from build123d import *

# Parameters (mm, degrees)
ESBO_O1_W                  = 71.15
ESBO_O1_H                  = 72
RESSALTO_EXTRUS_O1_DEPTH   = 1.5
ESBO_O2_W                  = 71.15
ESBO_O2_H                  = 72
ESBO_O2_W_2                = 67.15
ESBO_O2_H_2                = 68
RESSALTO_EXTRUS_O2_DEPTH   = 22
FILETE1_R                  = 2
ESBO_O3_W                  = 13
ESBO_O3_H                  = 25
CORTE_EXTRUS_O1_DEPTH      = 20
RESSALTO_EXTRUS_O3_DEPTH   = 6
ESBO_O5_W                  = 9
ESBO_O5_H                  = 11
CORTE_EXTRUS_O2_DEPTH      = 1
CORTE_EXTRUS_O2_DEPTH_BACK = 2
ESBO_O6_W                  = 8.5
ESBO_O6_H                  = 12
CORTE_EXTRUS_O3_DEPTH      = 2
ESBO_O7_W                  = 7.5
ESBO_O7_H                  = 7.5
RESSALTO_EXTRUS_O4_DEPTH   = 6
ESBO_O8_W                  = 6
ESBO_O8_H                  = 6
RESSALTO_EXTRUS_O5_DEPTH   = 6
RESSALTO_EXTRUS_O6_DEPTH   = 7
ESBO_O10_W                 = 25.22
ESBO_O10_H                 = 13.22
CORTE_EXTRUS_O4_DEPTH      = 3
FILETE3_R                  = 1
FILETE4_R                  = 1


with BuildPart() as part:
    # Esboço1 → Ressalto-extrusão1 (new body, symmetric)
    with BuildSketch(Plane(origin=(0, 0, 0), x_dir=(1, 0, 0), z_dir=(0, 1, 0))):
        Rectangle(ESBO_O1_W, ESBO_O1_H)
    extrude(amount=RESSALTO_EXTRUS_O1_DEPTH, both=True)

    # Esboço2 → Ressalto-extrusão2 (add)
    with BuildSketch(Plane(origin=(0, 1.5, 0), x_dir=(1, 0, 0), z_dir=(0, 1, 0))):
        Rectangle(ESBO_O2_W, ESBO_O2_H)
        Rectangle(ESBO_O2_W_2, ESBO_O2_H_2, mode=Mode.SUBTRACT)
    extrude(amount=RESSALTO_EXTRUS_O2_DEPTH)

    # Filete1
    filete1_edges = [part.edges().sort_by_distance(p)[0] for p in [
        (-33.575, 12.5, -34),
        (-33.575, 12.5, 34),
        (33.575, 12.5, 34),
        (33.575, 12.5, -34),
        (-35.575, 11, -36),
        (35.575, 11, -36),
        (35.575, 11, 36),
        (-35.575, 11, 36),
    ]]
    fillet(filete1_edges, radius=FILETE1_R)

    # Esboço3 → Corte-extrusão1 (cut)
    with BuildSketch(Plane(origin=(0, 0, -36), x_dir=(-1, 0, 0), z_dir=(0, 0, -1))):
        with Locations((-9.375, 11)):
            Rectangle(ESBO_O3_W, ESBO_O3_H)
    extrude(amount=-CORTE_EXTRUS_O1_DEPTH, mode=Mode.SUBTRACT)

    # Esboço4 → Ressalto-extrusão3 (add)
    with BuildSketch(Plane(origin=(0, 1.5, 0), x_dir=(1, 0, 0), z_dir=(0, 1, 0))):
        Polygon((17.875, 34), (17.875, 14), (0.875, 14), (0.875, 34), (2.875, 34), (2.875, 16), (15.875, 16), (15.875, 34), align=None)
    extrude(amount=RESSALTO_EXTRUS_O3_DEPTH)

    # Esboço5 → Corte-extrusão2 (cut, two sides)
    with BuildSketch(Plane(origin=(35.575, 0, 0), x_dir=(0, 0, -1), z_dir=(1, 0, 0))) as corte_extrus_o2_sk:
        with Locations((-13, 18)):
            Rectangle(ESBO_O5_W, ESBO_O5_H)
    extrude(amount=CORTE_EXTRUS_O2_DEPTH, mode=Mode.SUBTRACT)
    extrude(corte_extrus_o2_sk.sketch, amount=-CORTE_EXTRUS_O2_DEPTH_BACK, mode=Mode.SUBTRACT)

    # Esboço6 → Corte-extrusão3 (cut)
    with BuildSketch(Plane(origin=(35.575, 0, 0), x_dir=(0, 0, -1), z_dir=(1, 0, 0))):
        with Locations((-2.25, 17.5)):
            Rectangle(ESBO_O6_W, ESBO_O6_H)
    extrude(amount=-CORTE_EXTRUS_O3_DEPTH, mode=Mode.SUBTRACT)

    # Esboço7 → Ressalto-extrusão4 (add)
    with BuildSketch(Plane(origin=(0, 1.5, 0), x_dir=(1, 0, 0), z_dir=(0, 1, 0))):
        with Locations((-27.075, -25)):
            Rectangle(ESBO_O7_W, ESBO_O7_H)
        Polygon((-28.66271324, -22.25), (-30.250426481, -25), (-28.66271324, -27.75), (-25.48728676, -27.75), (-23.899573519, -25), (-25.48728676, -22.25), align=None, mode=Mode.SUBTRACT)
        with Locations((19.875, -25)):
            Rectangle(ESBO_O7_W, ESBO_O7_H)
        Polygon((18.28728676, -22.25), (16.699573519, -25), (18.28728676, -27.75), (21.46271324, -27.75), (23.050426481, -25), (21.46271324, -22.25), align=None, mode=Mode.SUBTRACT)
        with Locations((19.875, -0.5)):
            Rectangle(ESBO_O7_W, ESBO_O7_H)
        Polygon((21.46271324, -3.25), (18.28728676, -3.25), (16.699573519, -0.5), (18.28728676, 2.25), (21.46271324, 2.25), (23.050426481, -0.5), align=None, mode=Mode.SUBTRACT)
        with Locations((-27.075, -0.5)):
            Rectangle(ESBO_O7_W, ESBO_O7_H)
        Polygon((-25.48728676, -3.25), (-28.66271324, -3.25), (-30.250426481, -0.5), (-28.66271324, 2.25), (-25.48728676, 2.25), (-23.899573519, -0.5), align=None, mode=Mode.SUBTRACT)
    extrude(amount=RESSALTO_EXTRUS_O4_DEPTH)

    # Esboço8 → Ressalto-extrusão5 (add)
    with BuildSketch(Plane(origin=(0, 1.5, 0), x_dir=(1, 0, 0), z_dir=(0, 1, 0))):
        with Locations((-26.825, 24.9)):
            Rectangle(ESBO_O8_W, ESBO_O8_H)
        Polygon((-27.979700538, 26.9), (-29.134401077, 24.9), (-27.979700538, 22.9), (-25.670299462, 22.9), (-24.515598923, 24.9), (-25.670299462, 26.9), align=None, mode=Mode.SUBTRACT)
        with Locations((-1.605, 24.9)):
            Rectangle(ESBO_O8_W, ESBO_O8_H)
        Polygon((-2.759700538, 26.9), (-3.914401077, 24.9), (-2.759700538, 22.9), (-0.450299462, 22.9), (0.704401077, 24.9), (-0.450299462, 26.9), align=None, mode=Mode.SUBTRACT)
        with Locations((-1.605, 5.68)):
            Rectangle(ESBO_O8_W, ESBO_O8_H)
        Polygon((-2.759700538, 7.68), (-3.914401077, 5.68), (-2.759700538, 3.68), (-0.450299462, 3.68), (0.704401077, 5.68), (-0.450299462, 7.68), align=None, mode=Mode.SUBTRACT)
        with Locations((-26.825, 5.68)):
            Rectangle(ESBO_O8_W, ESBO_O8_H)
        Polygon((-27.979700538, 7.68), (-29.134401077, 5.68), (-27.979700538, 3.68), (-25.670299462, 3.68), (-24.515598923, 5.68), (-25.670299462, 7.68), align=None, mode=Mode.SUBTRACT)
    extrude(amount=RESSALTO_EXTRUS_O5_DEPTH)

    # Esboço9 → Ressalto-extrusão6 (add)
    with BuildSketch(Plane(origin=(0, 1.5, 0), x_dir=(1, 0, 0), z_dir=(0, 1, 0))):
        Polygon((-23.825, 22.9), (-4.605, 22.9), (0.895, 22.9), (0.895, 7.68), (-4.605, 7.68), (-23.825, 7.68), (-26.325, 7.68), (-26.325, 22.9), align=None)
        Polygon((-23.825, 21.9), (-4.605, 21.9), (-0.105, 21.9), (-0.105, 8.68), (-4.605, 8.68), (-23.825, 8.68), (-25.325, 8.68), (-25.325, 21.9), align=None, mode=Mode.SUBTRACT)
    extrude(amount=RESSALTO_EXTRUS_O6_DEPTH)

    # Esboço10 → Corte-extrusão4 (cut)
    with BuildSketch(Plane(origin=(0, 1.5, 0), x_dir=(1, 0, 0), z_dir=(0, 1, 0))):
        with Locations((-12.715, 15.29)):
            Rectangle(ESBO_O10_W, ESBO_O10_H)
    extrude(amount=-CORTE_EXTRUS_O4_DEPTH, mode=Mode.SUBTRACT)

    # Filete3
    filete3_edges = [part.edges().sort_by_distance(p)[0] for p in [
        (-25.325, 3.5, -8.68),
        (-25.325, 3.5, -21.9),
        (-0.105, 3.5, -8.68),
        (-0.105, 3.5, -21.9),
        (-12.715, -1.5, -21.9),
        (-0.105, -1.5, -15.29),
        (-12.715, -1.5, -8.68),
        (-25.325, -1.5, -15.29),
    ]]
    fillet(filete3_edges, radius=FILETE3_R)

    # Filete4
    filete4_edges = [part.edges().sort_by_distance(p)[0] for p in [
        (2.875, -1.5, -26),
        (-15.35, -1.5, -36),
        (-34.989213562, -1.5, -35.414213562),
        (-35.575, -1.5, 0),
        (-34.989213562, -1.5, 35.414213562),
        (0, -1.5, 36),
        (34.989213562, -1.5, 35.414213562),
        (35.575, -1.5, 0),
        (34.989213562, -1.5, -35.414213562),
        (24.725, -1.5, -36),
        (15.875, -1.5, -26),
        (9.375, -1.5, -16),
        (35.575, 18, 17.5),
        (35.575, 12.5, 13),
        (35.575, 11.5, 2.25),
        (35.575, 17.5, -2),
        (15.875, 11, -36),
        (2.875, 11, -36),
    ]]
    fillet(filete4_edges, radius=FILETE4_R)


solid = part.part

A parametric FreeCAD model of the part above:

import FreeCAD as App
import Part
import Sketcher

V = App.Vector
Q = App.Units.Quantity


def edges_at(feature, points):
    """Names of the edges that pass closest to the given points."""
    edges = feature.Shape.Edges
    near = lambda p: min(range(len(edges)), key=lambda i: edges[i].distToShape(Part.Vertex(*p))[0])
    return sorted({f"Edge{near(p) + 1}" for p in points})


def add_polygon(sketch, points):
    """Adds a closed chain of lines whose ends are joined by coincident constraints."""
    first, n = sketch.GeometryCount, len(points)
    for a, b in zip(points, points[1:] + points[:1]):
        sketch.addGeometry(Part.LineSegment(App.Vector(*a, 0), App.Vector(*b, 0)), False)
    for i in range(n):
        sketch.addConstraint(Sketcher.Constraint("Coincident", first + i, 2, first + (i + 1) % n, 1))

doc = App.newDocument("Part")
body = doc.addObject("PartDesign::Body", "Body")

sketch1 = body.newObject("Sketcher::SketchObject", "Sketch")
sketch1.AttachmentSupport = (doc.getObject("XZ_Plane"), [""])
sketch1.MapMode = "FlatFace"
add_polygon(sketch1, [(-35.575, -36), (-35.575, 36), (35.575, 36), (35.575, -36)])
sketch1.addConstraint([
    Sketcher.Constraint("Vertical", 0),
    Sketcher.Constraint("Horizontal", 1),
    Sketcher.Constraint("Vertical", 2),
    Sketcher.Constraint("Horizontal", 3),
    Sketcher.Constraint("Symmetric", 0, 2, 2, 2, -1, 1),
    Sketcher.Constraint("DistanceY", 0, 1, 0, 2, Q("72 mm")),
    Sketcher.Constraint("DistanceX", 1, 1, 1, 2, Q("71.15 mm")),
])
pad1 = body.newObject("PartDesign::Pad", "Pad")
pad1.Profile = sketch1
pad1.Length = 3
pad1.Midplane = True

sketch2 = body.newObject("Sketcher::SketchObject", "Sketch001")
sketch2.AttachmentSupport = (doc.getObject("XZ_Plane"), [""])
sketch2.MapMode = "FlatFace"
sketch2.AttachmentOffset = App.Placement(V(0, 0, -1.5), App.Rotation())
add_polygon(sketch2, [(-35.575, -36), (-35.575, 36), (35.575, 36), (35.575, -36)])
add_polygon(sketch2, [(33.575, 34), (-33.575, 34), (-33.575, -34), (33.575, -34)])
sketch2.addConstraint([
    Sketcher.Constraint("Vertical", 0),
    Sketcher.Constraint("Horizontal", 1),
    Sketcher.Constraint("Vertical", 2),
    Sketcher.Constraint("Horizontal", 3),
    Sketcher.Constraint("Horizontal", 4),
    Sketcher.Constraint("Vertical", 5),
    Sketcher.Constraint("Horizontal", 6),
    Sketcher.Constraint("Vertical", 7),
    Sketcher.Constraint("Symmetric", 0, 2, 2, 2, -1, 1),
    Sketcher.Constraint("Symmetric", 4, 2, 6, 2, -1, 1),
    Sketcher.Constraint("DistanceY", 0, 1, 0, 2, Q("72 mm")),
    Sketcher.Constraint("DistanceY", 5, 2, 5, 1, Q("68 mm")),
    Sketcher.Constraint("DistanceX", 0, 2, 4, 2, Q("2 mm")),
    Sketcher.Constraint("DistanceX", 1, 1, 1, 2, Q("71.15 mm")),
])
pad2 = body.newObject("PartDesign::Pad", "Pad001")
pad2.Profile = sketch2
pad2.Length = 22
pad2.Reversed = True
doc.recompute()

fillet = body.newObject("PartDesign::Fillet", "Fillet")
fillet.Base = (pad2, edges_at(pad2, [
    (-33.575, 12.5, -34),
    (-33.575, 12.5, 34),
    (33.575, 12.5, 34),
    (33.575, 12.5, -34),
    (-35.575, 11, -36),
    (35.575, 11, -36),
    (35.575, 11, 36),
    (-35.575, 11, 36),
]))
fillet.Radius = 2

sketch3 = body.newObject("Sketcher::SketchObject", "Sketch002")
sketch3.AttachmentSupport = (doc.getObject("XY_Plane"), [""])
sketch3.MapMode = "FlatFace"
sketch3.AttachmentOffset = App.Placement(V(0, 0, -36), App.Rotation())
add_polygon(sketch3, [(15.875, 23.5), (15.875, -1.5), (2.875, -1.5), (2.875, 23.5)])
sketch3.addConstraint([
    Sketcher.Constraint("Vertical", 0),
    Sketcher.Constraint("Horizontal", 1),
    Sketcher.Constraint("Vertical", 2),
    Sketcher.Constraint("Horizontal", 3),
    Sketcher.Constraint("DistanceX", 1, 2, 1, 1, Q("13 mm")),
    Sketcher.Constraint("DistanceY", 0, 2, 0, 1, Q("25 mm")),
    Sketcher.Constraint("DistanceY", 0, 2, -1, 1, Q("1.5 mm")),
    Sketcher.Constraint("DistanceX", -1, 1, 0, 2, Q("15.875 mm")),
])
pocket1 = body.newObject("PartDesign::Pocket", "Pocket")
pocket1.Profile = sketch3
pocket1.Length = 20
pocket1.Reversed = True

sketch4 = body.newObject("Sketcher::SketchObject", "Sketch003")
sketch4.AttachmentSupport = (doc.getObject("XZ_Plane"), [""])
sketch4.MapMode = "FlatFace"
sketch4.AttachmentOffset = App.Placement(V(0, 0, -1.5), App.Rotation())
add_polygon(sketch4, [(17.875, -14), (17.875, -34), (15.875, -34), (15.875, -16), (2.875, -16), (2.875, -34), (0.875, -34), (0.875, -14)])
sketch4.addConstraint([
    Sketcher.Constraint("Vertical", 0),
    Sketcher.Constraint("Horizontal", 1),
    Sketcher.Constraint("Vertical", 2),
    Sketcher.Constraint("Horizontal", 3),
    Sketcher.Constraint("Vertical", 4),
    Sketcher.Constraint("Horizontal", 5),
    Sketcher.Constraint("Vertical", 6),
    Sketcher.Constraint("Horizontal", 7),
    Sketcher.Constraint("Horizontal", 1, 2, 4, 2),
    Sketcher.Constraint("Equal", 1, 5),
    Sketcher.Constraint("DistanceX", 1, 2, 1, 1, Q("2 mm")),
    Sketcher.Constraint("DistanceX", 3, 2, 3, 1, Q("13 mm")),
    Sketcher.Constraint("DistanceY", 0, 2, 0, 1, Q("20 mm")),
    Sketcher.Constraint("DistanceY", 2, 1, 2, 2, Q("18 mm")),
    Sketcher.Constraint("DistanceY", 0, 2, -1, 1, Q("34 mm")),
    Sketcher.Constraint("DistanceX", -1, 1, 0, 2, Q("17.875 mm")),
])
pad3 = body.newObject("PartDesign::Pad", "Pad002")
pad3.Profile = sketch4
pad3.Length = 6
pad3.Reversed = True

sketch5 = body.newObject("Sketcher::SketchObject", "Sketch004")
sketch5.AttachmentSupport = (doc.getObject("YZ_Plane"), [""])
sketch5.MapMode = "FlatFace"
sketch5.AttachmentOffset = App.Placement(V(0, 0, 35.575), App.Rotation())
add_polygon(sketch5, [(23.5, 17.5), (12.5, 17.5), (12.5, 8.5), (23.5, 8.5)])
sketch5.addConstraint([
    Sketcher.Constraint("Horizontal", 0),
    Sketcher.Constraint("Vertical", 1),
    Sketcher.Constraint("Horizontal", 2),
    Sketcher.Constraint("Vertical", 3),
    Sketcher.Constraint("DistanceX", 0, 2, 0, 1, Q("11 mm")),
    Sketcher.Constraint("DistanceY", 1, 2, 1, 1, Q("9 mm")),
    Sketcher.Constraint("DistanceX", -1, 1, 0, 2, Q("12.5 mm")),
    Sketcher.Constraint("DistanceY", -1, 1, 0, 2, Q("17.5 mm")),
])
pocket2 = body.newObject("PartDesign::Pocket", "Pocket001")
pocket2.Profile = sketch5
pocket2.Type = "TwoLengths"
pocket2.Length = 1
pocket2.Length2 = 2
pocket2.Reversed = True

sketch6 = body.newObject("Sketcher::SketchObject", "Sketch005")
sketch6.AttachmentSupport = (doc.getObject("YZ_Plane"), [""])
sketch6.MapMode = "FlatFace"
sketch6.AttachmentOffset = App.Placement(V(0, 0, 35.575), App.Rotation())
add_polygon(sketch6, [(23.5, 6.5), (11.5, 6.5), (11.5, -2), (23.5, -2)])
sketch6.addConstraint([
    Sketcher.Constraint("Horizontal", 0),
    Sketcher.Constraint("Vertical", 1),
    Sketcher.Constraint("Horizontal", 2),
    Sketcher.Constraint("Vertical", 3),
    Sketcher.Constraint("DistanceX", 0, 2, 0, 1, Q("12 mm")),
    Sketcher.Constraint("DistanceY", 1, 2, 1, 1, Q("8.5 mm")),
    Sketcher.Constraint("DistanceY", 1, 2, -1, 1, Q("2 mm")),
    Sketcher.Constraint("DistanceX", -1, 1, 0, 2, Q("11.5 mm")),
])
pocket3 = body.newObject("PartDesign::Pocket", "Pocket002")
pocket3.Profile = sketch6
pocket3.Length = 2

sketch7 = body.newObject("Sketcher::SketchObject", "Sketch006")
sketch7.AttachmentSupport = (doc.getObject("XZ_Plane"), [""])
sketch7.MapMode = "FlatFace"
sketch7.AttachmentOffset = App.Placement(V(0, 0, -1.5), App.Rotation())
add_polygon(sketch7, [(-30.825, 21.25), (-30.825, 28.75), (-23.325, 28.75), (-23.325, 21.25)])
add_polygon(sketch7, [(-30.250426, 25), (-28.662713, 22.25), (-25.487287, 22.25), (-23.899574, 25), (-25.487287, 27.75), (-28.662713, 27.75)])
add_polygon(sketch7, [(16.125, 21.25), (16.125, 28.75), (23.625, 28.75), (23.625, 21.25)])
add_polygon(sketch7, [(16.699574, 25), (18.287287, 22.25), (21.462713, 22.25), (23.050426, 25), (21.462713, 27.75), (18.287287, 27.75)])
add_polygon(sketch7, [(16.125, -3.25), (16.125, 4.25), (23.625, 4.25), (23.625, -3.25)])
add_polygon(sketch7, [(23.050426, 0.5), (21.462713, 3.25), (18.287287, 3.25), (16.699574, 0.5), (18.287287, -2.25), (21.462713, -2.25)])
add_polygon(sketch7, [(-30.825, -3.25), (-30.825, 4.25), (-23.325, 4.25), (-23.325, -3.25)])
add_polygon(sketch7, [(-23.899574, 0.5), (-25.487287, 3.25), (-28.662713, 3.25), (-30.250426, 0.5), (-28.662713, -2.25), (-25.487287, -2.25)])
sketch7.addConstraint([
    Sketcher.Constraint("Vertical", 0),
    Sketcher.Constraint("Horizontal", 1),
    Sketcher.Constraint("Vertical", 2),
    Sketcher.Constraint("Horizontal", 3),
    Sketcher.Constraint("Horizontal", 5),
    Sketcher.Constraint("Horizontal", 8),
    Sketcher.Constraint("Vertical", 10),
    Sketcher.Constraint("Horizontal", 11),
    Sketcher.Constraint("Vertical", 12),
    Sketcher.Constraint("Horizontal", 13),
    Sketcher.Constraint("Horizontal", 15),
    Sketcher.Constraint("Horizontal", 18),
    Sketcher.Constraint("Vertical", 20),
    Sketcher.Constraint("Horizontal", 21),
    Sketcher.Constraint("Vertical", 22),
    Sketcher.Constraint("Horizontal", 23),
    Sketcher.Constraint("Horizontal", 25),
    Sketcher.Constraint("Horizontal", 28),
    Sketcher.Constraint("Vertical", 30),
    Sketcher.Constraint("Horizontal", 31),
    Sketcher.Constraint("Vertical", 32),
    Sketcher.Constraint("Horizontal", 33),
    Sketcher.Constraint("Horizontal", 35),
    Sketcher.Constraint("Horizontal", 38),
    Sketcher.Constraint("Parallel", 4, 7),
    Sketcher.Constraint("Parallel", 6, 9),
    Sketcher.Constraint("Parallel", 7, 14),
    Sketcher.Constraint("Parallel", 9, 16),
    Sketcher.Constraint("Parallel", 14, 17),
    Sketcher.Constraint("Parallel", 16, 19),
    Sketcher.Constraint("Parallel", 17, 24),
    Sketcher.Constraint("Parallel", 19, 26),
    Sketcher.Constraint("Parallel", 24, 27),
    Sketcher.Constraint("Parallel", 26, 29),
    Sketcher.Constraint("Parallel", 27, 34),
    Sketcher.Constraint("Parallel", 29, 36),
    Sketcher.Constraint("Parallel", 34, 37),
    Sketcher.Constraint("Parallel", 36, 39),
    Sketcher.Constraint("Horizontal", 6, 2, 9, 2),
    Sketcher.Constraint("Horizontal", 1, 2, 10, 2),
    Sketcher.Constraint("Horizontal", 3, 2, 12, 2),
    Sketcher.Constraint("Horizontal", 5, 2, 14, 2),
    Sketcher.Constraint("Horizontal", 9, 2, 16, 2),
    Sketcher.Constraint("Horizontal", 8, 2, 17, 2),
    Sketcher.Constraint("Horizontal", 16, 2, 19, 2),
    Sketcher.Constraint("Horizontal", 26, 2, 29, 2),
    Sketcher.Constraint("Horizontal", 21, 2, 30, 2),
    Sketcher.Constraint("Horizontal", 23, 2, 32, 2),
    Sketcher.Constraint("Horizontal", 25, 2, 34, 2),
    Sketcher.Constraint("Horizontal", 29, 2, 36, 2),
    Sketcher.Constraint("Horizontal", 28, 2, 37, 2),
    Sketcher.Constraint("Horizontal", 36, 2, 39, 2),
    Sketcher.Constraint("Vertical", 5, 2, 7, 2),
    Sketcher.Constraint("Vertical", 4, 2, 8, 2),
    Sketcher.Constraint("Vertical", 13, 2, 20, 2),
    Sketcher.Constraint("Vertical", 12, 2, 21, 2),
    Sketcher.Constraint("Vertical", 17, 2, 24, 2),
    Sketcher.Constraint("Vertical", 18, 2, 25, 2),
    Sketcher.Constraint("Vertical", 19, 2, 26, 2),
    Sketcher.Constraint("Vertical", 25, 2, 27, 2),
    Sketcher.Constraint("Vertical", 3, 2, 30, 2),
    Sketcher.Constraint("Vertical", 2, 2, 31, 2),
    Sketcher.Constraint("Vertical", 7, 2, 34, 2),
    Sketcher.Constraint("Vertical", 8, 2, 35, 2),
    Sketcher.Constraint("Equal", 3, 11),
    Sketcher.Constraint("Equal", 8, 15),
    Sketcher.Constraint("Equal", 33, 0),
    Sketcher.Constraint("Equal", 12, 20),
    Sketcher.Constraint("Angle", 4, Q("-60 deg")),
    Sketcher.Constraint("DistanceX", 1, 1, 1, 2, Q("7.5 mm")),
    Sketcher.Constraint("DistanceY", -1, 1, 6, 2, Q("25 mm")),
    Sketcher.Constraint("DistanceY", 3, 2, 4, 2, Q("1 mm")),
    Sketcher.Constraint("DistanceY", 7, 2, 1, 2, Q("1 mm")),
    Sketcher.Constraint("DistanceY", 20, 2, 13, 2, Q("17 mm")),
    Sketcher.Constraint("DistanceY", 24, 2, 21, 2, Q("1 mm")),
    Sketcher.Constraint("DistanceX", 1, 2, 10, 2, Q("39.45 mm")),
    Sketcher.Constraint("DistanceX", 0, 2, -1, 1, Q("30.825 mm")),
    Sketcher.Constraint("DistanceX", 5, 1, 5, 2, Q("3.175426 mm")),
    Sketcher.Constraint("DistanceX", 4, 2, -1, 1, Q("28.662713 mm")),
    Sketcher.Constraint("DistanceX", -1, 1, 14, 2, Q("18.287287 mm")),
])
pad4 = body.newObject("PartDesign::Pad", "Pad003")
pad4.Profile = sketch7
pad4.Length = 6
pad4.Reversed = True

sketch8 = body.newObject("Sketcher::SketchObject", "Sketch007")
sketch8.AttachmentSupport = (doc.getObject("XZ_Plane"), [""])
sketch8.MapMode = "FlatFace"
sketch8.AttachmentOffset = App.Placement(V(0, 0, -1.5), App.Rotation())
add_polygon(sketch8, [(-29.825, -27.9), (-29.825, -21.9), (-23.825, -21.9), (-23.825, -27.9)])
add_polygon(sketch8, [(-29.134401, -24.9), (-27.979701, -26.9), (-25.670299, -26.9), (-24.515599, -24.9), (-25.670299, -22.9), (-27.979701, -22.9)])
add_polygon(sketch8, [(-4.605, -27.9), (-4.605, -21.9), (1.395, -21.9), (1.395, -27.9)])
add_polygon(sketch8, [(-3.914401, -24.9), (-2.759701, -26.9), (-0.450299, -26.9), (0.704401, -24.9), (-0.450299, -22.9), (-2.759701, -22.9)])
add_polygon(sketch8, [(-4.605, -8.68), (-4.605, -2.68), (1.395, -2.68), (1.395, -8.68)])
add_polygon(sketch8, [(-3.914401, -5.68), (-2.759701, -7.68), (-0.450299, -7.68), (0.704401, -5.68), (-0.450299, -3.68), (-2.759701, -3.68)])
add_polygon(sketch8, [(-29.825, -8.68), (-29.825, -2.68), (-23.825, -2.68), (-23.825, -8.68)])
add_polygon(sketch8, [(-29.134401, -5.68), (-27.979701, -7.68), (-25.670299, -7.68), (-24.515599, -5.68), (-25.670299, -3.68), (-27.979701, -3.68)])
sketch8.addConstraint([
    Sketcher.Constraint("Vertical", 0),
    Sketcher.Constraint("Horizontal", 1),
    Sketcher.Constraint("Vertical", 2),
    Sketcher.Constraint("Horizontal", 3),
    Sketcher.Constraint("Horizontal", 5),
    Sketcher.Constraint("Horizontal", 8),
    Sketcher.Constraint("Vertical", 10),
    Sketcher.Constraint("Horizontal", 11),
    Sketcher.Constraint("Vertical", 12),
    Sketcher.Constraint("Horizontal", 13),
    Sketcher.Constraint("Horizontal", 15),
    Sketcher.Constraint("Horizontal", 18),
    Sketcher.Constraint("Vertical", 20),
    Sketcher.Constraint("Horizontal", 21),
    Sketcher.Constraint("Vertical", 22),
    Sketcher.Constraint("Horizontal", 23),
    Sketcher.Constraint("Horizontal", 25),
    Sketcher.Constraint("Horizontal", 28),
    Sketcher.Constraint("Vertical", 30),
    Sketcher.Constraint("Horizontal", 31),
    Sketcher.Constraint("Vertical", 32),
    Sketcher.Constraint("Horizontal", 33),
    Sketcher.Constraint("Horizontal", 35),
    Sketcher.Constraint("Horizontal", 38),
    Sketcher.Constraint("Parallel", 4, 7),
    Sketcher.Constraint("Parallel", 6, 9),
    Sketcher.Constraint("Parallel", 7, 14),
    Sketcher.Constraint("Parallel", 9, 16),
    Sketcher.Constraint("Parallel", 14, 17),
    Sketcher.Constraint("Parallel", 16, 19),
    Sketcher.Constraint("Parallel", 17, 24),
    Sketcher.Constraint("Parallel", 19, 26),
    Sketcher.Constraint("Parallel", 24, 27),
    Sketcher.Constraint("Parallel", 26, 29),
    Sketcher.Constraint("Parallel", 27, 34),
    Sketcher.Constraint("Parallel", 29, 36),
    Sketcher.Constraint("Parallel", 34, 37),
    Sketcher.Constraint("Parallel", 36, 39),
    Sketcher.Constraint("Horizontal", 6, 2, 9, 2),
    Sketcher.Constraint("Horizontal", 1, 2, 10, 2),
    Sketcher.Constraint("Horizontal", 3, 2, 12, 2),
    Sketcher.Constraint("Horizontal", 5, 2, 14, 2),
    Sketcher.Constraint("Horizontal", 9, 2, 16, 2),
    Sketcher.Constraint("Horizontal", 8, 2, 17, 2),
    Sketcher.Constraint("Horizontal", 16, 2, 19, 2),
    Sketcher.Constraint("Horizontal", 26, 2, 29, 2),
    Sketcher.Constraint("Horizontal", 21, 2, 30, 2),
    Sketcher.Constraint("Horizontal", 23, 2, 32, 2),
    Sketcher.Constraint("Horizontal", 25, 2, 34, 2),
    Sketcher.Constraint("Horizontal", 29, 2, 36, 2),
    Sketcher.Constraint("Horizontal", 28, 2, 37, 2),
    Sketcher.Constraint("Horizontal", 36, 2, 39, 2),
    Sketcher.Constraint("Vertical", 5, 2, 7, 2),
    Sketcher.Constraint("Vertical", 4, 2, 8, 2),
    Sketcher.Constraint("Vertical", 13, 2, 20, 2),
    Sketcher.Constraint("Vertical", 12, 2, 21, 2),
    Sketcher.Constraint("Vertical", 18, 2, 24, 2),
    Sketcher.Constraint("Vertical", 17, 2, 25, 2),
    Sketcher.Constraint("Vertical", 16, 2, 26, 2),
    Sketcher.Constraint("Vertical", 25, 2, 27, 2),
    Sketcher.Constraint("Vertical", 3, 2, 30, 2),
    Sketcher.Constraint("Vertical", 2, 2, 31, 2),
    Sketcher.Constraint("Vertical", 8, 2, 34, 2),
    Sketcher.Constraint("Vertical", 7, 2, 35, 2),
    Sketcher.Constraint("Equal", 3, 11),
    Sketcher.Constraint("Equal", 8, 15),
    Sketcher.Constraint("Equal", 33, 0),
    Sketcher.Constraint("Equal", 12, 20),
    Sketcher.Constraint("DistanceX", 1, 1, 1, 2, Q("6 mm")),
    Sketcher.Constraint("Angle", 4, Q("-60 deg")),
    Sketcher.Constraint("DistanceY", 3, 2, 4, 2, Q("1 mm")),
    Sketcher.Constraint("DistanceY", 5, 2, 6, 2, Q("2 mm")),
    Sketcher.Constraint("DistanceY", 23, 2, 24, 2, Q("1 mm")),
    Sketcher.Constraint("DistanceY", 0, 2, -1, 1, Q("21.9 mm")),
    Sketcher.Constraint("DistanceY", 20, 2, -1, 1, Q("2.68 mm")),
    Sketcher.Constraint("DistanceX", 1, 2, 10, 2, Q("19.22 mm")),
    Sketcher.Constraint("DistanceX", 5, 1, 5, 2, Q("2.309401 mm")),
    Sketcher.Constraint("DistanceX", 0, 2, -1, 1, Q("29.825 mm")),
    Sketcher.Constraint("DistanceX", 4, 2, -1, 1, Q("27.979701 mm")),
    Sketcher.Constraint("DistanceX", 14, 2, -1, 1, Q("2.759701 mm")),
])
pad5 = body.newObject("PartDesign::Pad", "Pad004")
pad5.Profile = sketch8
pad5.Length = 6
pad5.Reversed = True

sketch9 = body.newObject("Sketcher::SketchObject", "Sketch008")
sketch9.AttachmentSupport = (doc.getObject("XZ_Plane"), [""])
sketch9.MapMode = "FlatFace"
sketch9.AttachmentOffset = App.Placement(V(0, 0, -1.5), App.Rotation())
add_polygon(sketch9, [(0.895, -22.9), (-26.325, -22.9), (-26.325, -7.68), (0.895, -7.68)])
add_polygon(sketch9, [(-0.105, -21.9), (-0.105, -8.68), (-25.325, -8.68), (-25.325, -21.9)])
sketch9.addConstraint([
    Sketcher.Constraint("Horizontal", 0),
    Sketcher.Constraint("Vertical", 1),
    Sketcher.Constraint("Horizontal", 2),
    Sketcher.Constraint("Vertical", 3),
    Sketcher.Constraint("Vertical", 4),
    Sketcher.Constraint("Horizontal", 5),
    Sketcher.Constraint("Vertical", 6),
    Sketcher.Constraint("Horizontal", 7),
    Sketcher.Constraint("DistanceX", 4, 2, 2, 2, Q("1 mm")),
    Sketcher.Constraint("DistanceY", 4, 2, 2, 2, Q("1 mm")),
    Sketcher.Constraint("DistanceX", 1, 2, 5, 2, Q("1 mm")),
    Sketcher.Constraint("DistanceY", 0, 2, 6, 2, Q("1 mm")),
    Sketcher.Constraint("DistanceX", 0, 2, 0, 1, Q("27.22 mm")),
    Sketcher.Constraint("DistanceY", 1, 1, 1, 2, Q("15.22 mm")),
    Sketcher.Constraint("DistanceY", 0, 2, -1, 1, Q("22.9 mm")),
    Sketcher.Constraint("DistanceX", 0, 2, -1, 1, Q("26.325 mm")),
])
pad6 = body.newObject("PartDesign::Pad", "Pad005")
pad6.Profile = sketch9
pad6.Length = 7
pad6.Reversed = True

sketch10 = body.newObject("Sketcher::SketchObject", "Sketch009")
sketch10.AttachmentSupport = (doc.getObject("XZ_Plane"), [""])
sketch10.MapMode = "FlatFace"
sketch10.AttachmentOffset = App.Placement(V(0, 0, -1.5), App.Rotation())
add_polygon(sketch10, [(-25.325, -21.9), (-25.325, -8.68), (-0.105, -8.68), (-0.105, -21.9)])
sketch10.addConstraint([
    Sketcher.Constraint("Vertical", 0),
    Sketcher.Constraint("Horizontal", 1),
    Sketcher.Constraint("Vertical", 2),
    Sketcher.Constraint("Horizontal", 3),
    Sketcher.Constraint("DistanceX", 1, 1, 1, 2, Q("25.22 mm")),
    Sketcher.Constraint("DistanceY", 0, 1, 0, 2, Q("13.22 mm")),
    Sketcher.Constraint("DistanceY", 2, 2, -1, 1, Q("21.9 mm")),
    Sketcher.Constraint("DistanceX", 0, 2, -1, 1, Q("25.325 mm")),
])
pocket4 = body.newObject("PartDesign::Pocket", "Pocket003")
pocket4.Profile = sketch10
pocket4.Length = 3
pocket4.Reversed = True
doc.recompute()

fillet2 = body.newObject("PartDesign::Fillet", "Fillet001")
fillet2.Base = (pocket4, edges_at(pocket4, [
    (-25.325, 3.5, -8.68),
    (-25.325, 3.5, -21.9),
    (-0.105, 3.5, -8.68),
    (-0.105, 3.5, -21.9),
    (-12.715, -1.5, -21.9),
    (-0.105, -1.5, -15.29),
    (-12.715, -1.5, -8.68),
    (-25.325, -1.5, -15.29),
]))
fillet2.Radius = 1
doc.recompute()

fillet3 = body.newObject("PartDesign::Fillet", "Fillet002")
fillet3.Base = (fillet2, edges_at(fillet2, [
    (2.875, -1.5, -26),
    (-15.35, -1.5, -36),
    (-34.989, -1.5, -35.414),
    (-35.575, -1.5, 0),
    (-34.989, -1.5, 35.414),
    (0, -1.5, 36),
    (34.989, -1.5, 35.414),
    (35.575, -1.5, 0),
    (34.989, -1.5, -35.414),
    (24.725, -1.5, -36),
    (15.875, -1.5, -26),
    (9.375, -1.5, -16),
    (35.575, 18, 17.5),
    (35.575, 12.5, 13),
    (35.575, 11.5, 2.25),
    (35.575, 17.5, -2),
    (15.875, 11, -36),
    (2.875, 11, -36),
]))
fillet3.Radius = 1

doc.recompute()
